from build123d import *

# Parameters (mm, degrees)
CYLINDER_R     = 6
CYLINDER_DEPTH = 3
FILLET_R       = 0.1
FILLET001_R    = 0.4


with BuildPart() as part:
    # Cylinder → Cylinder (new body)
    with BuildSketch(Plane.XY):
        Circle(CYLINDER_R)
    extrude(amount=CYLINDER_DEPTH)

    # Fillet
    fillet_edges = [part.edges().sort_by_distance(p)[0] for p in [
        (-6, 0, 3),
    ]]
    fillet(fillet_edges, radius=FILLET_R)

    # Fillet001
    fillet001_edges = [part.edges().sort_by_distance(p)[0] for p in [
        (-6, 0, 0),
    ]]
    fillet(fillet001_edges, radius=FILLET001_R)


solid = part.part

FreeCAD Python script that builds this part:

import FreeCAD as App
import Part
import Sketcher
from FreeCAD import Vector


def edges_at(feature, points):
    """Names of the edges that pass closest to the given points."""
    edges = feature.Shape.Edges
    near = lambda p: min(range(len(edges)), key=lambda i: edges[i].distToShape(Part.Vertex(*p))[0])
    return sorted({f"Edge{near(p) + 1}" for p in points})

doc = App.newDocument("Part")
body = doc.addObject("PartDesign::Body", "Body")

# Sketch on XY plane
sketch1 = body.newObject("Sketcher::SketchObject", "Sketch")
sketch1.AttachmentSupport = (doc.getObject("XY_Plane"), [""])
sketch1.MapMode = "FlatFace"
sketch1.addGeometry(Part.Circle(Vector(0, 0, 0), Vector(0, 0, 1), 6), False)
sketch1.addConstraint(Sketcher.Constraint("Coincident", 0, 3, -1, 1))
sketch1.addConstraint(Sketcher.Constraint("Diameter", 0, 12.0))
pad1 = body.newObject("PartDesign::Pad", "Pad")
pad1.Profile = sketch1
pad1.Length = 3
doc.recompute()

fillet = body.newObject("PartDesign::Fillet", "Fillet")
fillet.Base = (pad1, edges_at(pad1, [(-6, 0, 3)]))
fillet.Radius = 0.1
doc.recompute()

fillet2 = body.newObject("PartDesign::Fillet", "Fillet001")
fillet2.Base = (fillet, edges_at(fillet, [(-6, 0, 0)]))
fillet2.Radius = 0.4

doc.recompute()
